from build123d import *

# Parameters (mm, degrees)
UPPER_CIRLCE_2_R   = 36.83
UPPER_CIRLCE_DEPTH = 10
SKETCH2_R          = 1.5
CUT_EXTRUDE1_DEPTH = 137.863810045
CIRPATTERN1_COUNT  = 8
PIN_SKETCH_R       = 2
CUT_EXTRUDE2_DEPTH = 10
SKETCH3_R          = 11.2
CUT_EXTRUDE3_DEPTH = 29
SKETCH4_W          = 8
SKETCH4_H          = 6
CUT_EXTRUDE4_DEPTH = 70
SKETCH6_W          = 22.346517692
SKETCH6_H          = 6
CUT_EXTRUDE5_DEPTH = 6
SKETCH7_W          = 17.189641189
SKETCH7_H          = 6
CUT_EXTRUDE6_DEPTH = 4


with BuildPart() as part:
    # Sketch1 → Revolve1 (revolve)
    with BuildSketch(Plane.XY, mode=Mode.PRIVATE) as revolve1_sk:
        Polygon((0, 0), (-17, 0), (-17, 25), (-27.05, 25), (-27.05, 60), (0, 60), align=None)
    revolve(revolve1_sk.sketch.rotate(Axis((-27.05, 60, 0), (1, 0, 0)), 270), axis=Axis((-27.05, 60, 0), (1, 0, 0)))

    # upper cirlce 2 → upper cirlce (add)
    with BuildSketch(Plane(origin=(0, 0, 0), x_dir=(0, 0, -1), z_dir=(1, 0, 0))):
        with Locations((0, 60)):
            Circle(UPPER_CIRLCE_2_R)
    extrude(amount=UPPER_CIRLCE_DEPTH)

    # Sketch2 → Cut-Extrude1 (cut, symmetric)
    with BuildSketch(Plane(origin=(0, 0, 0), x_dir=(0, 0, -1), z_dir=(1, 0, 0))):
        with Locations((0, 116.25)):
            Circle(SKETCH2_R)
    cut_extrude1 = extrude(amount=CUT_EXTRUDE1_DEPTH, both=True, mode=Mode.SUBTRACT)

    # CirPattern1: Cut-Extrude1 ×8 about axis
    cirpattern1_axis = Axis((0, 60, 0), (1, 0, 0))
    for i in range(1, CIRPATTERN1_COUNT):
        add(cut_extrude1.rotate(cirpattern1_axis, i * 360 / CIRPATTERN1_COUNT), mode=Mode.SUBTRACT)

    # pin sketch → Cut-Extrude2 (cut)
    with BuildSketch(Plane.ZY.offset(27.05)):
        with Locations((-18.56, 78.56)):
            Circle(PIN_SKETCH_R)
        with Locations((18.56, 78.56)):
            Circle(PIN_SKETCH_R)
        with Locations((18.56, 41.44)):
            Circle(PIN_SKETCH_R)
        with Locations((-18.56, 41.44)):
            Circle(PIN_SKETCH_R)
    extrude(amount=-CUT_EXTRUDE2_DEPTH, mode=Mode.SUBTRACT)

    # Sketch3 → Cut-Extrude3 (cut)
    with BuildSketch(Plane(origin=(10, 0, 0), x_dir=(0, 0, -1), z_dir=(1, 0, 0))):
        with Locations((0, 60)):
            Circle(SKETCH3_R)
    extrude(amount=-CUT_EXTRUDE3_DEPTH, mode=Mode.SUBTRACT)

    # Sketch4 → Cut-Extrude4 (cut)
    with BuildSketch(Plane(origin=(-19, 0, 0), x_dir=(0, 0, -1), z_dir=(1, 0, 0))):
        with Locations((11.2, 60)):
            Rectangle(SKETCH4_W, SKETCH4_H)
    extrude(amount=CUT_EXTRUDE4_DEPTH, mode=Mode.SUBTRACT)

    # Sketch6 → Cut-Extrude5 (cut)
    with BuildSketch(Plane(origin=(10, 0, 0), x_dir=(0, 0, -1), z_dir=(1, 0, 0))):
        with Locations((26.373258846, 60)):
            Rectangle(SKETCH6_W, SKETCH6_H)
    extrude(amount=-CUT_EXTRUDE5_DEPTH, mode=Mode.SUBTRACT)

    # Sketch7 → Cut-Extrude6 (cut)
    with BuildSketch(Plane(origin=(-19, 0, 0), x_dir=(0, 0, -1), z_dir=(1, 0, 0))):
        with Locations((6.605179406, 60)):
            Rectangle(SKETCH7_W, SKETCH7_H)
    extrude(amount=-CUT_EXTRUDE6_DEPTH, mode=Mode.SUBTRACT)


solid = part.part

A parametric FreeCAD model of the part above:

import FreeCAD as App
import Part
import Sketcher
from FreeCAD import Vector
Q = App.Units.Quantity

doc = App.newDocument("Part")
body = doc.addObject("PartDesign::Body", "Body")

sketch1 = body.newObject("Sketcher::SketchObject", "Sketch")
sketch1.AttachmentSupport = (doc.getObject("XY_Plane"), [""])
sketch1.MapMode = "FlatFace"
sketch1.addGeometry(Part.LineSegment(Vector(-17, 0, 0), Vector(0, 0, 0)), False)
sketch1.addGeometry(Part.LineSegment(Vector(0, 0, 0), Vector(0, 60, 0)), False)
sketch1.addGeometry(Part.LineSegment(Vector(0, 60, 0), Vector(-27, 60, 0)), False)
sketch1.addGeometry(Part.LineSegment(Vector(-27, 60, 0), Vector(-27, 25, 0)), False)
sketch1.addGeometry(Part.LineSegment(Vector(-27, 25, 0), Vector(-17, 25, 0)), False)
sketch1.addGeometry(Part.LineSegment(Vector(-17, 25, 0), Vector(-17, 0, 0)), False)
sketch1.addGeometry(Part.LineSegment(Vector(-27, 60, 0), Vector(0, 60, 0)), True)
sketch1.addConstraint(Sketcher.Constraint("Coincident", 0, 2, 1, 1))
sketch1.addConstraint(Sketcher.Constraint("Coincident", 1, 2, 2, 1))
sketch1.addConstraint(Sketcher.Constraint("Coincident", 2, 2, 3, 1))
sketch1.addConstraint(Sketcher.Constraint("Coincident", 3, 2, 4, 1))
sketch1.addConstraint(Sketcher.Constraint("Coincident", 4, 2, 5, 1))
sketch1.addConstraint(Sketcher.Constraint("Coincident", 5, 2, 0, 1))
sketch1.addConstraint(Sketcher.Constraint("Horizontal", 0))
sketch1.addConstraint(Sketcher.Constraint("Vertical", 1))
sketch1.addConstraint(Sketcher.Constraint("Horizontal", 2))
sketch1.addConstraint(Sketcher.Constraint("Vertical", 3))
sketch1.addConstraint(Sketcher.Constraint("Horizontal", 4))
sketch1.addConstraint(Sketcher.Constraint("Vertical", 5))
sketch1.addConstraint(Sketcher.Constraint("Horizontal", 6))
sketch1.addConstraint(Sketcher.Constraint("Coincident", 0, 2, -1, 1))
sketch1.addConstraint(Sketcher.Constraint("Coincident", 6, 1, 2, 2))
sketch1.addConstraint(Sketcher.Constraint("PointOnObject", 6, 2, -2))
sketch1.addConstraint(Sketcher.Constraint("DistanceX", 0, 1, 0, 2, Q("17 mm")))
sketch1.addConstraint(Sketcher.Constraint("DistanceY", 1, 1, 1, 2, Q("60 mm")))
sketch1.addConstraint(Sketcher.Constraint("DistanceY", 3, 2, 3, 1, Q("35 mm")))
sketch1.addConstraint(Sketcher.Constraint("DistanceX", 2, 2, 2, 1, Q("27.05 mm")))
revolution = body.newObject("PartDesign::Revolution", "Revolution")
revolution.Profile = sketch1
revolution.ReferenceAxis = (sketch1, ["Axis0"])
revolution.Angle = 360

sketch2 = body.newObject("Sketcher::SketchObject", "Sketch001")
sketch2.AttachmentSupport = (doc.getObject("YZ_Plane"), [""])
sketch2.MapMode = "FlatFace"
sketch2.addGeometry(Part.Circle(Vector(60, 0, 0), Vector(0, 0, 1), 37), False)
sketch2.addConstraint(Sketcher.Constraint("PointOnObject", 0, 3, -1))
sketch2.addConstraint(Sketcher.Constraint("Diameter", 0, Q("73.66 mm")))
sketch2.addConstraint(Sketcher.Constraint("DistanceX", -1, 1, 0, 3, Q("60 mm")))
pad1 = body.newObject("PartDesign::Pad", "Pad")
pad1.Profile = sketch2
pad1.Length = 10

sketch3 = body.newObject("Sketcher::SketchObject", "Sketch002")
sketch3.AttachmentSupport = (doc.getObject("YZ_Plane"), [""])
sketch3.MapMode = "FlatFace"
sketch3.addGeometry(Part.Circle(Vector(116.2, 0, 0), Vector(0, 0, 1), 1.5), False)
sketch3.addConstraint(Sketcher.Constraint("PointOnObject", 0, 3, -1))
sketch3.addConstraint(Sketcher.Constraint("Diameter", 0, Q("3 mm")))
sketch3.addConstraint(Sketcher.Constraint("DistanceX", -1, 1, 0, 3, Q("116.25 mm")))
pocket1 = body.newObject("PartDesign::Pocket", "Pocket")
pocket1.Profile = sketch3
pocket1.Length = 275.72762
pocket1.Midplane = True
doc.recompute()

datumline = body.newObject("PartDesign::Line", "DatumLine")
datumline.Placement = App.Placement(Vector(0, 60, 0), App.Rotation(Vector(0, 0, 1), Vector(1, 0, 0)))
polarpattern = body.newObject("PartDesign::PolarPattern", "PolarPattern")
polarpattern.Originals = [pocket1]
polarpattern.Axis = (datumline, [""])
polarpattern.Angle = 360
polarpattern.Occurrences = 8
body.Tip = polarpattern

sketch4 = body.newObject("Sketcher::SketchObject", "Sketch003")
sketch4.AttachmentSupport = (doc.getObject("YZ_Plane"), [""])
sketch4.MapMode = "FlatFace"
sketch4.AttachmentOffset = App.Placement(Vector(0, 0, -27.05), App.Rotation())
sketch4.addGeometry(Part.Circle(Vector(78.6, -18.6, 0), Vector(0, 0, 1), 2), False)
sketch4.addGeometry(Part.Circle(Vector(78.6, 18.6, 0), Vector(0, 0, 1), 2), False)
sketch4.addGeometry(Part.Circle(Vector(41.4, 18.6, 0), Vector(0, 0, 1), 2), False)
sketch4.addGeometry(Part.Circle(Vector(41.4, -18.6, 0), Vector(0, 0, 1), 2), False)
sketch4.addConstraint(Sketcher.Constraint("Equal", 0, 1))
sketch4.addConstraint(Sketcher.Constraint("Equal", 1, 2))
sketch4.addConstraint(Sketcher.Constraint("Equal", 2, 3))
sketch4.addConstraint(Sketcher.Constraint("Symmetric", 0, 3, 1, 3, -1))
sketch4.addConstraint(Sketcher.Constraint("Symmetric", 2, 3, 3, 3, -1))
sketch4.addConstraint(Sketcher.Constraint("Horizontal", 1, 3, 2, 3))
sketch4.addConstraint(Sketcher.Constraint("Diameter", 0, Q("4 mm")))
sketch4.addConstraint(Sketcher.Constraint("DistanceX", -1, 1, 0, 3, Q("78.56 mm")))
sketch4.addConstraint(Sketcher.Constraint("DistanceY", 0, 3, -1, 1, Q("18.56 mm")))
sketch4.addConstraint(Sketcher.Constraint("DistanceX", -1, 1, 2, 3, Q("41.44 mm")))
pocket2 = body.newObject("PartDesign::Pocket", "Pocket001")
pocket2.Profile = sketch4
pocket2.Length = 10
pocket2.Reversed = True

sketch5 = body.newObject("Sketcher::SketchObject", "Sketch004")
sketch5.AttachmentSupport = (doc.getObject("YZ_Plane"), [""])
sketch5.MapMode = "FlatFace"
sketch5.AttachmentOffset = App.Placement(Vector(0, 0, 10), App.Rotation())
sketch5.addGeometry(Part.Circle(Vector(60, 0, 0), Vector(0, 0, 1), 11), False)
sketch5.addConstraint(Sketcher.Constraint("PointOnObject", 0, 3, -1))
sketch5.addConstraint(Sketcher.Constraint("Diameter", 0, Q("22.4 mm")))
sketch5.addConstraint(Sketcher.Constraint("DistanceX", -1, 1, 0, 3, Q("60 mm")))
pocket3 = body.newObject("PartDesign::Pocket", "Pocket002")
pocket3.Profile = sketch5
pocket3.Length = 29

sketch6 = body.newObject("Sketcher::SketchObject", "Sketch005")
sketch6.AttachmentSupport = (doc.getObject("YZ_Plane"), [""])
sketch6.MapMode = "FlatFace"
sketch6.AttachmentOffset = App.Placement(Vector(0, 0, -19), App.Rotation())
sketch6.addGeometry(Part.LineSegment(Vector(63, -7, 0), Vector(57, -7, 0)), False)
sketch6.addGeometry(Part.LineSegment(Vector(57, -7, 0), Vector(57, -15, 0)), False)
sketch6.addGeometry(Part.LineSegment(Vector(57, -15, 0), Vector(63, -15, 0)), False)
sketch6.addGeometry(Part.LineSegment(Vector(63, -15, 0), Vector(63, -7, 0)), False)
sketch6.addConstraint(Sketcher.Constraint("Coincident", 0, 2, 1, 1))
sketch6.addConstraint(Sketcher.Constraint("Coincident", 1, 2, 2, 1))
sketch6.addConstraint(Sketcher.Constraint("Coincident", 2, 2, 3, 1))
sketch6.addConstraint(Sketcher.Constraint("Coincident", 3, 2, 0, 1))
sketch6.addConstraint(Sketcher.Constraint("Horizontal", 0))
sketch6.addConstraint(Sketcher.Constraint("Vertical", 1))
sketch6.addConstraint(Sketcher.Constraint("Horizontal", 2))
sketch6.addConstraint(Sketcher.Constraint("Vertical", 3))
sketch6.addConstraint(Sketcher.Constraint("DistanceX", 0, 2, 0, 1, Q("6 mm")))
sketch6.addConstraint(Sketcher.Constraint("DistanceY", 1, 2, 1, 1, Q("8 mm")))
sketch6.addConstraint(Sketcher.Constraint("DistanceX", -1, 1, 0, 2, Q("57 mm")))
sketch6.addConstraint(Sketcher.Constraint("DistanceY", 0, 2, -1, 1, Q("7.2 mm")))
pocket4 = body.newObject("PartDesign::Pocket", "Pocket003")
pocket4.Profile = sketch6
pocket4.Length = 70
pocket4.Reversed = True

sketch7 = body.newObject("Sketcher::SketchObject", "Sketch006")
sketch7.AttachmentSupport = (doc.getObject("YZ_Plane"), [""])
sketch7.MapMode = "FlatFace"
sketch7.AttachmentOffset = App.Placement(Vector(0, 0, 10), App.Rotation())
sketch7.addGeometry(Part.LineSegment(Vector(63, -15, 0), Vector(57, -15, 0)), False)
sketch7.addGeometry(Part.LineSegment(Vector(57, -15, 0), Vector(57, -38, 0)), False)
sketch7.addGeometry(Part.LineSegment(Vector(57, -38, 0), Vector(63, -38, 0)), False)
sketch7.addGeometry(Part.LineSegment(Vector(63, -38, 0), Vector(63, -15, 0)), False)
sketch7.addConstraint(Sketcher.Constraint("Coincident", 0, 2, 1, 1))
sketch7.addConstraint(Sketcher.Constraint("Coincident", 1, 2, 2, 1))
sketch7.addConstraint(Sketcher.Constraint("Coincident", 2, 2, 3, 1))
sketch7.addConstraint(Sketcher.Constraint("Coincident", 3, 2, 0, 1))
sketch7.addConstraint(Sketcher.Constraint("Horizontal", 0))
sketch7.addConstraint(Sketcher.Constraint("Vertical", 1))
sketch7.addConstraint(Sketcher.Constraint("Horizontal", 2))
sketch7.addConstraint(Sketcher.Constraint("Vertical", 3))
sketch7.addConstraint(Sketcher.Constraint("DistanceX", 0, 2, 0, 1, Q("6 mm")))
sketch7.addConstraint(Sketcher.Constraint("DistanceX", -1, 1, 0, 2, Q("57 mm")))
sketch7.addConstraint(Sketcher.Constraint("DistanceY", 0, 2, -1, 1, Q("15.2 mm")))
sketch7.addConstraint(Sketcher.Constraint("DistanceY", 1, 2, 1, 1, Q("22.346518 mm")))
pocket5 = body.newObject("PartDesign::Pocket", "Pocket004")
pocket5.Profile = sketch7
pocket5.Length = 6

sketch8 = body.newObject("Sketcher::SketchObject", "Sketch007")
sketch8.AttachmentSupport = (doc.getObject("YZ_Plane"), [""])
sketch8.MapMode = "FlatFace"
sketch8.AttachmentOffset = App.Placement(Vector(0, 0, -19), App.Rotation())
sketch8.addGeometry(Part.LineSegment(Vector(63, 2, 0), Vector(57, 2, 0)), False)
sketch8.addGeometry(Part.LineSegment(Vector(57, 2, 0), Vector(57, -15, 0)), False)
sketch8.addGeometry(Part.LineSegment(Vector(57, -15, 0), Vector(63, -15, 0)), False)
sketch8.addGeometry(Part.LineSegment(Vector(63, -15, 0), Vector(63, 2, 0)), False)
sketch8.addConstraint(Sketcher.Constraint("Coincident", 0, 2, 1, 1))
sketch8.addConstraint(Sketcher.Constraint("Coincident", 1, 2, 2, 1))
sketch8.addConstraint(Sketcher.Constraint("Coincident", 2, 2, 3, 1))
sketch8.addConstraint(Sketcher.Constraint("Coincident", 3, 2, 0, 1))
sketch8.addConstraint(Sketcher.Constraint("Horizontal", 0))
sketch8.addConstraint(Sketcher.Constraint("Vertical", 1))
sketch8.addConstraint(Sketcher.Constraint("Horizontal", 2))
sketch8.addConstraint(Sketcher.Constraint("Vertical", 3))
sketch8.addConstraint(Sketcher.Constraint("DistanceX", 0, 2, 0, 1, Q("6 mm")))
sketch8.addConstraint(Sketcher.Constraint("DistanceX", -1, 1, 0, 2, Q("57 mm")))
sketch8.addConstraint(Sketcher.Constraint("DistanceY", 1, 2, -1, 1, Q("15.2 mm")))
sketch8.addConstraint(Sketcher.Constraint("DistanceY", 1, 2, 1, 1, Q("17.189641 mm")))
pocket6 = body.newObject("PartDesign::Pocket", "Pocket005")
pocket6.Profile = sketch8
pocket6.Length = 4

doc.recompute()
